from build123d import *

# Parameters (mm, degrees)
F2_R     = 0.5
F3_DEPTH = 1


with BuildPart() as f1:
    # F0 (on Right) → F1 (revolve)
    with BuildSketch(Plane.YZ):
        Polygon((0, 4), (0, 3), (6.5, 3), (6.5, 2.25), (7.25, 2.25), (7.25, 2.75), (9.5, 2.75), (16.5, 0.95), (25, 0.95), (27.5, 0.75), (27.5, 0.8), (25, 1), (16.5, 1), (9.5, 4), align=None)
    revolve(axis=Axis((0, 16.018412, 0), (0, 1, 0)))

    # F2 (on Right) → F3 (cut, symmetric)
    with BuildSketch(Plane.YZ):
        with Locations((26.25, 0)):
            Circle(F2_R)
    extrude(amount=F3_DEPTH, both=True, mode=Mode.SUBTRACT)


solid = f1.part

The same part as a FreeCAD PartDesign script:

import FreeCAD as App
import Part
import Sketcher

V = App.Vector

doc = App.newDocument("Part")
params = doc.addObject("Spreadsheet::Sheet", "Params")
for row, (alias, value) in enumerate([
    ("sketch1_height", "1 mm"),
    ("sketch1_width", "6.5 mm"),
    ("sketch1_width2", "8.5 mm"),
    ("sketch1_width3", "9.5 mm"),
    ("sketch1_height2", "0.5 mm"),
    ("revolution_angle", "360 deg"),
    ("sketch2_diameter", "1 mm"),
    ("pocket1_length", "2 mm"),
], start=1):
    params.set(f"A{row}", alias)
    params.set(f"B{row}", "=" + value)
    params.setAlias(f"B{row}", alias)

body = doc.addObject("PartDesign::Body", "Body")

sketch1 = body.newObject("Sketcher::SketchObject", "Sketch")
sketch1.AttachmentSupport = (doc.getObject("YZ_Plane"), [""])
sketch1.MapMode = "FlatFace"
sketch1.addGeometry(Part.LineSegment(V(0, 4, 0), V(0, 3, 0)), False)
sketch1.addGeometry(Part.LineSegment(V(0, 3, 0), V(6.5, 3, 0)), False)
sketch1.addGeometry(Part.LineSegment(V(6.5, 3, 0), V(6.5, 2.25, 0)), False)
sketch1.addGeometry(Part.LineSegment(V(6.5, 2.25, 0), V(7.25, 2.25, 0)), False)
sketch1.addGeometry(Part.LineSegment(V(7.25, 2.25, 0), V(7.25, 2.75, 0)), False)
sketch1.addGeometry(Part.LineSegment(V(7.25, 2.75, 0), V(9.5, 2.75, 0)), False)
sketch1.addGeometry(Part.LineSegment(V(9.5, 2.75, 0), V(16.5, 0.95, 0)), False)
sketch1.addGeometry(Part.LineSegment(V(16.5, 0.95, 0), V(25, 0.95, 0)), False)
sketch1.addGeometry(Part.LineSegment(V(25, 0.95, 0), V(27.5, 0.75, 0)), False)
sketch1.addGeometry(Part.LineSegment(V(27.5, 0.75, 0), V(27.5, 0.8, 0)), False)
sketch1.addGeometry(Part.LineSegment(V(27.5, 0.8, 0), V(25, 1, 0)), False)
sketch1.addGeometry(Part.LineSegment(V(25, 1, 0), V(16.5, 1, 0)), False)
sketch1.addGeometry(Part.LineSegment(V(16.5, 1, 0), V(9.5, 4, 0)), False)
sketch1.addGeometry(Part.LineSegment(V(9.5, 4, 0), V(0, 4, 0)), False)
sketch1.addConstraint(Sketcher.Constraint("Coincident", 0, 2, 1, 1))
sketch1.addConstraint(Sketcher.Constraint("Coincident", 1, 2, 2, 1))
sketch1.addConstraint(Sketcher.Constraint("Coincident", 2, 2, 3, 1))
sketch1.addConstraint(Sketcher.Constraint("Coincident", 3, 2, 4, 1))
sketch1.addConstraint(Sketcher.Constraint("Coincident", 4, 2, 5, 1))
sketch1.addConstraint(Sketcher.Constraint("Coincident", 5, 2, 6, 1))
sketch1.addConstraint(Sketcher.Constraint("Coincident", 6, 2, 7, 1))
sketch1.addConstraint(Sketcher.Constraint("Coincident", 7, 2, 8, 1))
sketch1.addConstraint(Sketcher.Constraint("Coincident", 8, 2, 9, 1))
sketch1.addConstraint(Sketcher.Constraint("Coincident", 9, 2, 10, 1))
sketch1.addConstraint(Sketcher.Constraint("Coincident", 10, 2, 11, 1))
sketch1.addConstraint(Sketcher.Constraint("Coincident", 11, 2, 12, 1))
sketch1.addConstraint(Sketcher.Constraint("Coincident", 12, 2, 13, 1))
sketch1.addConstraint(Sketcher.Constraint("Coincident", 13, 2, 0, 1))
sketch1.addConstraint(Sketcher.Constraint("Vertical", 0))
sketch1.addConstraint(Sketcher.Constraint("Horizontal", 1))
sketch1.addConstraint(Sketcher.Constraint("Vertical", 2))
sketch1.addConstraint(Sketcher.Constraint("Horizontal", 3))
sketch1.addConstraint(Sketcher.Constraint("Vertical", 4))
sketch1.addConstraint(Sketcher.Constraint("Horizontal", 5))
sketch1.addConstraint(Sketcher.Constraint("Horizontal", 7))
sketch1.addConstraint(Sketcher.Constraint("Vertical", 9))
sketch1.addConstraint(Sketcher.Constraint("Horizontal", 11))
sketch1.addConstraint(Sketcher.Constraint("Horizontal", 13))
sketch1.addConstraint(Sketcher.Constraint("PointOnObject", 0, 2, -2))
sketch1.addConstraint(Sketcher.Constraint("Parallel", 8, 10))
sketch1.addConstraint(Sketcher.Constraint("Vertical", 7, 2, 10, 2))
sketch1.addConstraint(Sketcher.Constraint("Vertical", 6, 2, 11, 2))
sketch1.addConstraint(Sketcher.Constraint("Vertical", 5, 2, 12, 2))
sketch1.addConstraint(Sketcher.Constraint("Equal", 3, 2))
sketch1.addConstraint(Sketcher.Constraint("DistanceY", 0, 2, 0, 1, 1.0))
sketch1.addConstraint(Sketcher.Constraint("DistanceX", 1, 1, 1, 2, 6.5))
sketch1.addConstraint(Sketcher.Constraint("DistanceX", 7, 1, 7, 2, 8.5))
sketch1.addConstraint(Sketcher.Constraint("DistanceX", 13, 2, 13, 1, 9.5))
sketch1.addConstraint(Sketcher.Constraint("DistanceY", 4, 1, 4, 2, 0.5))
sketch1.addConstraint(Sketcher.Constraint("DistanceY", -1, 1, 0, 2, 3.0))
sketch1.addConstraint(Sketcher.Constraint("DistanceX", -1, 1, 7, 2, 25.0))
sketch1.addConstraint(Sketcher.Constraint("DistanceY", -1, 1, 10, 2, 1.0))
sketch1.addConstraint(Sketcher.Constraint("DistanceX", 6, 2, 8, 2, 11.0))
sketch1.addConstraint(Sketcher.Constraint("DistanceY", 8, 2, 5, 2, 2.0))
sketch1.addConstraint(Sketcher.Constraint("DistanceX", 3, 1, 3, 2, 0.75))
sketch1.addConstraint(Sketcher.Constraint("DistanceY", 9, 1, 9, 2, 0.05))
sketch1.setExpression("Constraints[30]", "Params.sketch1_height")
sketch1.setExpression("Constraints[31]", "Params.sketch1_width")
sketch1.setExpression("Constraints[32]", "Params.sketch1_width2")
sketch1.setExpression("Constraints[33]", "Params.sketch1_width3")
sketch1.setExpression("Constraints[34]", "Params.sketch1_height2")
revolution = body.newObject("PartDesign::Revolution", "Revolution")
revolution.Profile = sketch1
revolution.ReferenceAxis = (sketch1, ["H_Axis"])
revolution.setExpression("Angle", "Params.revolution_angle")

sketch2 = body.newObject("Sketcher::SketchObject", "Sketch001")
sketch2.AttachmentSupport = (doc.getObject("YZ_Plane"), [""])
sketch2.MapMode = "FlatFace"
sketch2.addGeometry(Part.Circle(V(26.2, 0, 0), V(0, 0, 1), 0.5), False)
sketch2.addConstraint(Sketcher.Constraint("PointOnObject", 0, 3, -1))
sketch2.addConstraint(Sketcher.Constraint("Diameter", 0, 1.0))
sketch2.addConstraint(Sketcher.Constraint("DistanceX", -1, 1, 0, 3, 26.25))
sketch2.setExpression("Constraints[1]", "Params.sketch2_diameter")
pocket1 = body.newObject("PartDesign::Pocket", "Pocket")
pocket1.Profile = sketch2
pocket1.setExpression("Length", "Params.pocket1_length")
pocket1.Midplane = True

doc.recompute()
